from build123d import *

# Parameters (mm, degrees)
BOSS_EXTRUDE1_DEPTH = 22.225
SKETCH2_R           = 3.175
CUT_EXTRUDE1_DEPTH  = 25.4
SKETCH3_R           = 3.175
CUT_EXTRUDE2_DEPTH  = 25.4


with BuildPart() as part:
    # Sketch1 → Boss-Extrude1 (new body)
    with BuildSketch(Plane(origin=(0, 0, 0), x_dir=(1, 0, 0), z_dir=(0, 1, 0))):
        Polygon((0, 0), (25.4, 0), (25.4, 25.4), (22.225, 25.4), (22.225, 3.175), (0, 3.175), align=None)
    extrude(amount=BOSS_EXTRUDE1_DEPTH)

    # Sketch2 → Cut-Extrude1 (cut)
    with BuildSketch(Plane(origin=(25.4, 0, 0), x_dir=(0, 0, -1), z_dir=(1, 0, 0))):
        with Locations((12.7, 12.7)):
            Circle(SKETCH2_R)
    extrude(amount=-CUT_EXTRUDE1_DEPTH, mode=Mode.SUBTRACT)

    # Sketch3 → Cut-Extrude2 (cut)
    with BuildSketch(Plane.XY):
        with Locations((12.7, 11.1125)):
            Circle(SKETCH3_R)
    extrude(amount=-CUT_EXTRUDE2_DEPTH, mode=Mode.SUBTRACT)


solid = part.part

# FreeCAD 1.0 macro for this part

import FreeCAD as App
import Part
import Sketcher
from FreeCAD import Vector
Q = App.Units.Quantity

doc = App.newDocument("Part")
params = doc.addObject("Spreadsheet::Sheet", "Params")
for row, (alias, value) in enumerate([
    ("sketch1_width", "1 in"),
    ("sketch1_width2", "0.125 in"),
    ("pad1_length", "0.875 in"),
    ("sketch2_diameter", "0.25 in"),
    ("pocket1_length", "1 in"),
    ("sketch3_diameter", "0.25 in"),
    ("pocket2_length", "1 in"),
], start=1):
    params.set(f"A{row}", alias)
    params.set(f"B{row}", "=" + value)
    params.setAlias(f"B{row}", alias)

body = doc.addObject("PartDesign::Body", "Body")

sketch1 = body.newObject("Sketcher::SketchObject", "Sketch")
sketch1.AttachmentSupport = (doc.getObject("XZ_Plane"), [""])
sketch1.MapMode = "FlatFace"
sketch1.addGeometry([
    Part.LineSegment(Vector(0, 0, 0), Vector(25.4, 0, 0)),
    Part.LineSegment(Vector(25.4, 0, 0), Vector(25.4, -25.4, 0)),
    Part.LineSegment(Vector(25.4, -25.4, 0), Vector(22.225, -25.4, 0)),
    Part.LineSegment(Vector(22.225, -25.4, 0), Vector(22.225, -3.175, 0)),
    Part.LineSegment(Vector(22.225, -3.175, 0), Vector(0, -3.175, 0)),
    Part.LineSegment(Vector(0, -3.175, 0), Vector(0, 0, 0)),
], False)
sketch1.addConstraint([
    Sketcher.Constraint("Coincident", 0, 2, 1, 1),
    Sketcher.Constraint("Coincident", 1, 2, 2, 1),
    Sketcher.Constraint("Coincident", 2, 2, 3, 1),
    Sketcher.Constraint("Coincident", 3, 2, 4, 1),
    Sketcher.Constraint("Coincident", 4, 2, 5, 1),
    Sketcher.Constraint("Coincident", 5, 2, 0, 1),
    Sketcher.Constraint("Horizontal", 0),
    Sketcher.Constraint("Vertical", 1),
    Sketcher.Constraint("Horizontal", 2),
    Sketcher.Constraint("Vertical", 3),
    Sketcher.Constraint("Horizontal", 4),
    Sketcher.Constraint("Vertical", 5),
    Sketcher.Constraint("Coincident", 5, 2, -1, 1),
    Sketcher.Constraint("Equal", 0, 1),
    Sketcher.Constraint("Equal", 4, 3),
    Sketcher.Constraint("DistanceX", 0, 1, 0, 2, Q("1 in")),
    Sketcher.Constraint("DistanceX", 2, 2, 2, 1, Q("0.125 in")),
])
sketch1.setExpression("Constraints[15]", "Params.sketch1_width")
sketch1.setExpression("Constraints[16]", "Params.sketch1_width2")
pad1 = body.newObject("PartDesign::Pad", "Pad")
pad1.Profile = sketch1
pad1.setExpression("Length", "Params.pad1_length")
pad1.Reversed = True

sketch2 = body.newObject("Sketcher::SketchObject", "Sketch001")
sketch2.AttachmentSupport = (doc.getObject("YZ_Plane"), [""])
sketch2.MapMode = "FlatFace"
sketch2.AttachmentOffset = App.Placement(Vector(0, 0, 1 * 25.4), App.Rotation())
sketch2.addGeometry(Part.Circle(Vector(12.7, -12.7, 0), Vector(0, 0, 1), 3.175), False)
sketch2.addConstraint([
    Sketcher.Constraint("Diameter", 0, Q("0.25 in")),
    Sketcher.Constraint("DistanceX", -1, 1, 0, 3, Q("0.5 in")),
    Sketcher.Constraint("DistanceY", 0, 3, -1, 1, Q("0.5 in")),
])
sketch2.setExpression("Constraints[0]", "Params.sketch2_diameter")
pocket1 = body.newObject("PartDesign::Pocket", "Pocket")
pocket1.Profile = sketch2
pocket1.setExpression("Length", "Params.pocket1_length")

sketch3 = body.newObject("Sketcher::SketchObject", "Sketch002")
sketch3.AttachmentSupport = (doc.getObject("XY_Plane"), [""])
sketch3.MapMode = "FlatFace"
sketch3.addGeometry(Part.Circle(Vector(12.7, 11.1125, 0), Vector(0, 0, 1), 3.175), False)
sketch3.addConstraint([
    Sketcher.Constraint("Diameter", 0, Q("0.25 in")),
    Sketcher.Constraint("DistanceX", -1, 1, 0, 3, Q("0.5 in")),
    Sketcher.Constraint("DistanceY", -1, 1, 0, 3, Q("0.4375 in")),
])
sketch3.setExpression("Constraints[0]", "Params.sketch3_diameter")
pocket2 = body.newObject("PartDesign::Pocket", "Pocket001")
pocket2.Profile = sketch3
pocket2.setExpression("Length", "Params.pocket2_length")

doc.recompute()
